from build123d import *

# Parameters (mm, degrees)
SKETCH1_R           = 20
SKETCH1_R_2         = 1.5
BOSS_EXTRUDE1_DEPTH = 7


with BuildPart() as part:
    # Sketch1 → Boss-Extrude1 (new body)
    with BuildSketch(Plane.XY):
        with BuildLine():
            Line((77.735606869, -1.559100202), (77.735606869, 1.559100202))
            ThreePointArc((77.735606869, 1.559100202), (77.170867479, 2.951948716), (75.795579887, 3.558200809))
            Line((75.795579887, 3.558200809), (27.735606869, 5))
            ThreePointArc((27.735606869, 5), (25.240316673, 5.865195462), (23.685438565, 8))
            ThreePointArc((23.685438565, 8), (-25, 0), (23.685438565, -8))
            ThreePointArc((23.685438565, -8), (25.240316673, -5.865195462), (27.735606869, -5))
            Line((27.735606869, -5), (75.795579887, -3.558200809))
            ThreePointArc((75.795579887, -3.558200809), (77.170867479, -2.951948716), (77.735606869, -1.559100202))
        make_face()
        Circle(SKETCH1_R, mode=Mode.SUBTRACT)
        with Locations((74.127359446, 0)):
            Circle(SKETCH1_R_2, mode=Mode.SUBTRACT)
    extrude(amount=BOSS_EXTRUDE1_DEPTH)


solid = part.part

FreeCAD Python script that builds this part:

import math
import FreeCAD as App
import Part
import Sketcher
from FreeCAD import Vector

doc = App.newDocument("Part")
params = doc.addObject("Spreadsheet::Sheet", "Params")
for row, (alias, value) in enumerate([
    ("sketch1_diameter", "40 mm"),
    ("sketch1_diameter2", "3 mm"),
    ("sketch1_radius", "2 mm"),
    ("sketch1_radius2", "25 mm"),
    ("pad1_length", "7 mm"),
], start=1):
    params.set(f"A{row}", alias)
    params.set(f"B{row}", "=" + value)
    params.setAlias(f"B{row}", alias)

body = doc.addObject("PartDesign::Body", "Body")

# Sketch on XY plane
sketch1 = body.newObject("Sketcher::SketchObject", "Sketch")
sketch1.AttachmentSupport = (doc.getObject("XY_Plane"), [""])
sketch1.MapMode = "FlatFace"
sketch1.addGeometry([
    Part.LineSegment(Vector(77.735607, -1.5591, 0), Vector(77.735607, 1.5591, 0)),  # 0
    Part.ArcOfCircle(Part.Circle(Vector(75.735607, 1.5591, 0), Vector(0, 0, 1), 2), math.radians(0), math.radians(88.281642)),  # 1
    Part.LineSegment(Vector(75.79558, 3.558201, 0), Vector(27.735607, 5, 0)),  # 2
    Part.ArcOfCircle(Part.Circle(Vector(27.867988, 9.412699, 0), Vector(0, 0, 1), 4.414684), math.radians(-161.337075), math.radians(-91.718358)),  # 3
    Part.ArcOfCircle(Part.Circle(Vector(0, 0, 0), Vector(0, 0, 1), 25), math.radians(18.662925), math.radians(341.337075)),  # 4
    Part.ArcOfCircle(Part.Circle(Vector(27.867988, -9.412699, 0), Vector(0, 0, 1), 4.414684), math.radians(91.718358), math.radians(161.337075)),  # 5
    Part.LineSegment(Vector(27.735607, -5, 0), Vector(75.79558, -3.558201, 0)),  # 6
    Part.ArcOfCircle(Part.Circle(Vector(75.735607, -1.5591, 0), Vector(0, 0, 1), 2), math.radians(-88.281642), math.radians(0)),  # 7
    Part.Circle(Vector(0, 0, 0), Vector(0, 0, 1), 20),  # 8
    Part.Circle(Vector(74.127359, 0, 0), Vector(0, 0, 1), 1.5),  # 9
], False)
sketch1.addConstraint([
    Sketcher.Constraint("Tangent", 0, 2, 1, 1),
    Sketcher.Constraint("Tangent", 1, 2, 2, 1),
    Sketcher.Constraint("Tangent", 2, 2, 3, 2),
    Sketcher.Constraint("Tangent", 3, 1, 4, 1),
    Sketcher.Constraint("Tangent", 4, 2, 5, 2),
    Sketcher.Constraint("Tangent", 5, 1, 6, 1),
    Sketcher.Constraint("Tangent", 6, 2, 7, 1),
    Sketcher.Constraint("Tangent", 7, 2, 0, 1),
    Sketcher.Constraint("Vertical", 0),
    Sketcher.Constraint("Coincident", 4, 3, -1, 1),
    Sketcher.Constraint("Coincident", 8, 3, -1, 1),
    Sketcher.Constraint("Equal", 3, 5),
    Sketcher.Constraint("Equal", 1, 7),
    Sketcher.Constraint("Symmetric", 2, 2, 5, 1, -1),
    Sketcher.Constraint("PointOnObject", 9, 3, -1),
    Sketcher.Constraint("Diameter", 8, 40.0),
    Sketcher.Constraint("Diameter", 9, 3.0),
    Sketcher.Constraint("Radius", 1, 2.0),
    Sketcher.Constraint("Radius", 4, 25.0),
    Sketcher.Constraint("DistanceY", -1, 1, 2, 2, 5.0),
    Sketcher.Constraint("DistanceY", -1, 1, 3, 1, 8.0),
    Sketcher.Constraint("DistanceY", 0, 1, 0, 2, 3.1182),
    Sketcher.Constraint("DistanceX", -1, 1, 9, 3, 74.127359),
    Sketcher.Constraint("DistanceX", -1, 1, 1, 2, 75.79558),
])
sketch1.setExpression("Constraints[15]", "Params.sketch1_diameter")
sketch1.setExpression("Constraints[16]", "Params.sketch1_diameter2")
sketch1.setExpression("Constraints[17]", "Params.sketch1_radius")
sketch1.setExpression("Constraints[18]", "Params.sketch1_radius2")
pad1 = body.newObject("PartDesign::Pad", "Pad")
pad1.Profile = sketch1
pad1.setExpression("Length", "Params.pad1_length")

doc.recompute()
